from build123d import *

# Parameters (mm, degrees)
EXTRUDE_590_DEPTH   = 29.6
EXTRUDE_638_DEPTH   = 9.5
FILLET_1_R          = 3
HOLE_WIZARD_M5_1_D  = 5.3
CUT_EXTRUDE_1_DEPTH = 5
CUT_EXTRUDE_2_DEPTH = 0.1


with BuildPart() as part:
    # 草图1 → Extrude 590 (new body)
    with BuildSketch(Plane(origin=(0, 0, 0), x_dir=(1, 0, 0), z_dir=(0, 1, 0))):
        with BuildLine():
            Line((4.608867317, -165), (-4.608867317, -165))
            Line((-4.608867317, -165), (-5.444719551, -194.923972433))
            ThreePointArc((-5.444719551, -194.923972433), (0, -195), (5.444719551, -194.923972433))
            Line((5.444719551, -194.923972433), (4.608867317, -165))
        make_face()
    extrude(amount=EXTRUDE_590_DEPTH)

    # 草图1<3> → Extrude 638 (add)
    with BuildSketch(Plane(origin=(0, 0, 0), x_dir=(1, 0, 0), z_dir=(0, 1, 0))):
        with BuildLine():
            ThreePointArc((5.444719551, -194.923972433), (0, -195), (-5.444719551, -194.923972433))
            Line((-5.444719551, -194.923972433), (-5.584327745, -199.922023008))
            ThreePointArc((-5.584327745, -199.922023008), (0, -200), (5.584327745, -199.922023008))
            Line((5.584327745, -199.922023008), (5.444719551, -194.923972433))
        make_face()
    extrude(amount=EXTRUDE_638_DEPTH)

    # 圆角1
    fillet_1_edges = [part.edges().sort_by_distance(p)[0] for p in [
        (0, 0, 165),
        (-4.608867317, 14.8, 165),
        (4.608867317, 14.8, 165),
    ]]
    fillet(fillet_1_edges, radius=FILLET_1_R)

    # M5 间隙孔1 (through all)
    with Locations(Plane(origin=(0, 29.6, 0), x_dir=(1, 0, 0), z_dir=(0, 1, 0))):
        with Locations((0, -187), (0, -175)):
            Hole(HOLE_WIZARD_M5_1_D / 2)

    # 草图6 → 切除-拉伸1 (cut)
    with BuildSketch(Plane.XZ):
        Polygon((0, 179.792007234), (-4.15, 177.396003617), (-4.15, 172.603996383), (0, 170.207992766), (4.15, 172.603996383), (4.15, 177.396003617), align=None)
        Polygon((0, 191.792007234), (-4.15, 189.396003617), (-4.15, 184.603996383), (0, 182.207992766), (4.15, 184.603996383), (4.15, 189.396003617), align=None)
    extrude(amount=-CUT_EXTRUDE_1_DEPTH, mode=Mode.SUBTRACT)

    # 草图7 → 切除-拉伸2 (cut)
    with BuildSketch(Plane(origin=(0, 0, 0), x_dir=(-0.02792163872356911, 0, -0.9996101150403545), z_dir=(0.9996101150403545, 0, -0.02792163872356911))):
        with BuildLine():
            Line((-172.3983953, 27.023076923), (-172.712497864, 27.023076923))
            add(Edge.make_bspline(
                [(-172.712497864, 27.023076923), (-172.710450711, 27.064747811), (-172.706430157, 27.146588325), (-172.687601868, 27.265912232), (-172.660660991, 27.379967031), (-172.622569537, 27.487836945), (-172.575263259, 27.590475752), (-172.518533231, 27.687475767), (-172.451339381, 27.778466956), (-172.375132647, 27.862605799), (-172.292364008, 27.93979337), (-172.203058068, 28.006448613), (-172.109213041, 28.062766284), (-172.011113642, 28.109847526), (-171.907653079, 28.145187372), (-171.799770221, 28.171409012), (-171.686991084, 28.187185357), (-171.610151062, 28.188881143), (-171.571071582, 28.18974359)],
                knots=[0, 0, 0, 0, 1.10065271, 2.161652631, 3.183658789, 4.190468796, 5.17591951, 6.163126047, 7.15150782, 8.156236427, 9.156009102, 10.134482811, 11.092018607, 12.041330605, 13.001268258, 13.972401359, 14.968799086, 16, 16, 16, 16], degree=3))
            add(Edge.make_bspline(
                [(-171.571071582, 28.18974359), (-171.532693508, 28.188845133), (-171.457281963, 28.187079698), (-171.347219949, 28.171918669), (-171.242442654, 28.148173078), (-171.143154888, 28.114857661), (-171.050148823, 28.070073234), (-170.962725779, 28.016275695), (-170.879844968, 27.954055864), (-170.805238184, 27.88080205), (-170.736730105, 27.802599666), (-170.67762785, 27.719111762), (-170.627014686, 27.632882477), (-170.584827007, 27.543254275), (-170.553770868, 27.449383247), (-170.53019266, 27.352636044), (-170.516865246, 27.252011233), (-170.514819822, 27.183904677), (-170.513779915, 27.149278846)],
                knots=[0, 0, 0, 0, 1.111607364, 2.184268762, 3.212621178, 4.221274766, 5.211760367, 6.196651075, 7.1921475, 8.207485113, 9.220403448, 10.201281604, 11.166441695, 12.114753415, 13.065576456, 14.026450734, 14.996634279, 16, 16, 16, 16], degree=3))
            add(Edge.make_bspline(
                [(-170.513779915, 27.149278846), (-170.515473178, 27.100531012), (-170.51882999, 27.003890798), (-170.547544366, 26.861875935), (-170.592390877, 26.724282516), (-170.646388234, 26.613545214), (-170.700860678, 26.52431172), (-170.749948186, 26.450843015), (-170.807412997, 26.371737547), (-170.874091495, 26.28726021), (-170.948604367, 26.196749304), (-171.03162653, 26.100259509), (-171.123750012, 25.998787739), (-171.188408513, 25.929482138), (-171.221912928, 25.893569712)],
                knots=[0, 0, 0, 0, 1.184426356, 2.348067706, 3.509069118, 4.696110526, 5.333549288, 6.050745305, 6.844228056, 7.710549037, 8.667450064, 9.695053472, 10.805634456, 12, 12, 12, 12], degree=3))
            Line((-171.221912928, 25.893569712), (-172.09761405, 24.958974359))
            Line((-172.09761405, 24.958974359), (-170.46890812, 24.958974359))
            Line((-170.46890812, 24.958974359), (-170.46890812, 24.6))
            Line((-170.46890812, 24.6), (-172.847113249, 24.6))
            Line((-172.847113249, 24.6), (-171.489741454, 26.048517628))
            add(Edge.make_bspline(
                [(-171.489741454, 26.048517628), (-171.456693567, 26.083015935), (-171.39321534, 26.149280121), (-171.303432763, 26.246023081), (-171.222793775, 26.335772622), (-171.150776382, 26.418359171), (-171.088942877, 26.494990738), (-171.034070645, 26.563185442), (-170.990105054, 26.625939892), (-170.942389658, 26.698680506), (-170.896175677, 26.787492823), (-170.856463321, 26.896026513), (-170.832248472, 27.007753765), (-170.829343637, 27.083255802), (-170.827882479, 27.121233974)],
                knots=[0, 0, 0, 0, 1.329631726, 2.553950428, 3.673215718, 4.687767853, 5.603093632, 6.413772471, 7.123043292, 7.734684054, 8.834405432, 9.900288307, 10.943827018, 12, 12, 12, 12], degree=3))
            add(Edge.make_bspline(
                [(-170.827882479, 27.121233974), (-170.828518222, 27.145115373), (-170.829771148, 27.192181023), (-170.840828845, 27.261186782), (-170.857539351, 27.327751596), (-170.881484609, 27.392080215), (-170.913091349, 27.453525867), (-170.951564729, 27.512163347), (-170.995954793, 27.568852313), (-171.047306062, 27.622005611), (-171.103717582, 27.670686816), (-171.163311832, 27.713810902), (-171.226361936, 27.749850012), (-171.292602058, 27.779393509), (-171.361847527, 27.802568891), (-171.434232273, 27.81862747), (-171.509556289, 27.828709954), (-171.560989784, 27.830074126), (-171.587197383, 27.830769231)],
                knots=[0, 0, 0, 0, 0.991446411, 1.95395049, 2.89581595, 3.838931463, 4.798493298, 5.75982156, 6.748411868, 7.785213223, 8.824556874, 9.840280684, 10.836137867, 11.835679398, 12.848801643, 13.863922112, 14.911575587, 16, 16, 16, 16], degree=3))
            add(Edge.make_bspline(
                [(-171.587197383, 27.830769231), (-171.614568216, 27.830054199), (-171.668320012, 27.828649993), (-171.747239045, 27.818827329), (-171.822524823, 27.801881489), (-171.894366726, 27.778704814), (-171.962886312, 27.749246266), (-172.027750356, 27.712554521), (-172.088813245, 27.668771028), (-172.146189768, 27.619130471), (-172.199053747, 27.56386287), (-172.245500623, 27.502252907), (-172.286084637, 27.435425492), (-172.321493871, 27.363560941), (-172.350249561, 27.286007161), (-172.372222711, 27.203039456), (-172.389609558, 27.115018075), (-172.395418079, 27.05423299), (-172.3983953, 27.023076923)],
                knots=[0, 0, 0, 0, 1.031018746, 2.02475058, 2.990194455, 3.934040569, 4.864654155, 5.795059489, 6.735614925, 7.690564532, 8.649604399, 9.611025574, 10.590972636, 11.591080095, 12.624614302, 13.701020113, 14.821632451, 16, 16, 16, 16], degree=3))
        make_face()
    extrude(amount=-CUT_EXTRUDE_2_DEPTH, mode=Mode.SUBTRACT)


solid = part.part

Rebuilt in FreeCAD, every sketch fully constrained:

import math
import FreeCAD as App
import Part
import Sketcher

V = App.Vector
Q = App.Units.Quantity


def edges_at(feature, points):
    """Names of the edges that pass closest to the given points."""
    edges = feature.Shape.Edges
    near = lambda p: min(range(len(edges)), key=lambda i: edges[i].distToShape(Part.Vertex(*p))[0])
    return sorted({f"Edge{near(p) + 1}" for p in points})

doc = App.newDocument("Part")
body = doc.addObject("PartDesign::Body", "Body")

# Sketch on XZ plane
sketch1 = body.newObject("Sketcher::SketchObject", "Sketch")
sketch1.AttachmentSupport = (doc.getObject("XZ_Plane"), [""])
sketch1.MapMode = "FlatFace"
sketch1.addGeometry([
    Part.LineSegment(V(4.608867, 165, 0), V(-4.608867, 165, 0)),
    Part.LineSegment(V(-4.608867, 165, 0), V(-5.44472, 194.923972, 0)),
    Part.ArcOfCircle(Part.Circle(V(0, 0, 0), V(0, 0, 1), 195), math.radians(88.4), math.radians(91.6)),
    Part.LineSegment(V(5.44472, 194.923972, 0), V(4.608867, 165, 0)),
], False)
sketch1.addConstraint([
    Sketcher.Constraint("Coincident", 0, 2, 1, 1),
    Sketcher.Constraint("Coincident", 1, 2, 2, 2),
    Sketcher.Constraint("Coincident", 2, 1, 3, 1),
    Sketcher.Constraint("Coincident", 3, 2, 0, 1),
    Sketcher.Constraint("Horizontal", 0),
    Sketcher.Constraint("Coincident", 2, 3, -1, 1),
    Sketcher.Constraint("Horizontal", 1, 2, 2, 1),
    Sketcher.Constraint("Equal", 1, 3),
    Sketcher.Constraint("Radius", 2, 195.0),
    Sketcher.Constraint("DistanceY", -1, 1, 0, 2, 165.0),
    Sketcher.Constraint("Angle", 1, Q("91.6 deg")),
    Sketcher.Constraint("DistanceX", 0, 2, 0, 1, 9.217735),
])
pad1 = body.newObject("PartDesign::Pad", "Pad")
pad1.Profile = sketch1
pad1.Length = 29.6
pad1.Reversed = True

# Sketch on XZ plane
sketch2 = body.newObject("Sketcher::SketchObject", "Sketch001")
sketch2.AttachmentSupport = (doc.getObject("XZ_Plane"), [""])
sketch2.MapMode = "FlatFace"
sketch2.addGeometry([
    Part.ArcOfCircle(Part.Circle(V(0, 0, 0), V(0, 0, 1), 195), math.radians(88.4), math.radians(91.6)),
    Part.LineSegment(V(-5.44472, 194.923972, 0), V(-5.584328, 199.922023, 0)),
    Part.ArcOfCircle(Part.Circle(V(0, 0, 0), V(0, 0, 1), 200), math.radians(88.4), math.radians(91.6)),
    Part.LineSegment(V(5.584328, 199.922023, 0), V(5.44472, 194.923972, 0)),
], False)
sketch2.addConstraint([
    Sketcher.Constraint("Coincident", 0, 2, 1, 1),
    Sketcher.Constraint("Coincident", 1, 2, 2, 2),
    Sketcher.Constraint("Coincident", 2, 1, 3, 1),
    Sketcher.Constraint("Coincident", 3, 2, 0, 1),
    Sketcher.Constraint("Coincident", 0, 3, -1, 1),
    Sketcher.Constraint("Coincident", 2, 3, -1, 1),
    Sketcher.Constraint("Horizontal", 1, 2, 2, 1),
    Sketcher.Constraint("Horizontal", 0, 2, 3, 2),
    Sketcher.Constraint("Radius", 0, 195.0),
    Sketcher.Constraint("Radius", 2, 200.0),
    Sketcher.Constraint("Angle", 1, Q("91.6 deg")),
    Sketcher.Constraint("DistanceX", 0, 2, -1, 1, 5.44472),
])
pad2 = body.newObject("PartDesign::Pad", "Pad001")
pad2.Profile = sketch2
pad2.Length = 9.5
pad2.Reversed = True
doc.recompute()

fillet = body.newObject("PartDesign::Fillet", "Fillet")
fillet.Base = (pad2, edges_at(pad2, [(0, 0, 165), (-4.609, 14.8, 165), (4.609, 14.8, 165)]))
fillet.Radius = 3

# Sketch on XZ plane
sketch3 = body.newObject("Sketcher::SketchObject", "Sketch002")
sketch3.AttachmentSupport = (doc.getObject("XZ_Plane"), [""])
sketch3.MapMode = "FlatFace"
sketch3.AttachmentOffset = App.Placement(V(0, 0, -29.6), App.Rotation())
sketch3.addGeometry([
    Part.Circle(V(0, 187, 0), V(0, 0, 1), 2.65),
    Part.Circle(V(0, 175, 0), V(0, 0, 1), 2.65),
], False)
sketch3.addConstraint([
    Sketcher.Constraint("Equal", 0, 1),
    Sketcher.Constraint("PointOnObject", 0, 3, -2),
    Sketcher.Constraint("PointOnObject", 1, 3, -2),
    Sketcher.Constraint("Diameter", 0, 5.3),
    Sketcher.Constraint("DistanceY", -1, 1, 0, 3, 187.0),
    Sketcher.Constraint("DistanceY", -1, 1, 1, 3, 175.0),
])
doc.recompute()
hole = body.newObject("PartDesign::Hole", "Hole")
hole.Profile = sketch3
hole.ThreadType = "None"
hole.Diameter = 5.3
hole.DepthType = "ThroughAll"
hole.Reversed = True

# Sketch on XZ plane
sketch4 = body.newObject("Sketcher::SketchObject", "Sketch003")
sketch4.AttachmentSupport = (doc.getObject("XZ_Plane"), [""])
sketch4.MapMode = "FlatFace"
sketch4.addGeometry([
    Part.LineSegment(V(0, 179.792007, 0), V(-4.15, 177.396004, 0)),  # 0
    Part.LineSegment(V(-4.15, 177.396004, 0), V(-4.15, 172.603996, 0)),  # 1
    Part.LineSegment(V(-4.15, 172.603996, 0), V(0, 170.207993, 0)),  # 2
    Part.LineSegment(V(0, 170.207993, 0), V(4.15, 172.603996, 0)),  # 3
    Part.LineSegment(V(4.15, 172.603996, 0), V(4.15, 177.396004, 0)),  # 4
    Part.LineSegment(V(4.15, 177.396004, 0), V(0, 179.792007, 0)),  # 5
    Part.LineSegment(V(0, 191.792007, 0), V(-4.15, 189.396004, 0)),  # 6
    Part.LineSegment(V(-4.15, 189.396004, 0), V(-4.15, 184.603996, 0)),  # 7
    Part.LineSegment(V(-4.15, 184.603996, 0), V(0, 182.207993, 0)),  # 8
    Part.LineSegment(V(0, 182.207993, 0), V(4.15, 184.603996, 0)),  # 9
    Part.LineSegment(V(4.15, 184.603996, 0), V(4.15, 189.396004, 0)),  # 10
    Part.LineSegment(V(4.15, 189.396004, 0), V(0, 191.792007, 0)),  # 11
], False)
sketch4.addConstraint([
    Sketcher.Constraint("Coincident", 0, 2, 1, 1),
    Sketcher.Constraint("Coincident", 1, 2, 2, 1),
    Sketcher.Constraint("Coincident", 2, 2, 3, 1),
    Sketcher.Constraint("Coincident", 3, 2, 4, 1),
    Sketcher.Constraint("Coincident", 4, 2, 5, 1),
    Sketcher.Constraint("Coincident", 5, 2, 0, 1),
    Sketcher.Constraint("Coincident", 6, 2, 7, 1),
    Sketcher.Constraint("Coincident", 7, 2, 8, 1),
    Sketcher.Constraint("Coincident", 8, 2, 9, 1),
    Sketcher.Constraint("Coincident", 9, 2, 10, 1),
    Sketcher.Constraint("Coincident", 10, 2, 11, 1),
    Sketcher.Constraint("Coincident", 11, 2, 6, 1),
    Sketcher.Constraint("Vertical", 1),
    Sketcher.Constraint("Vertical", 4),
    Sketcher.Constraint("Vertical", 7),
    Sketcher.Constraint("Vertical", 10),
    Sketcher.Constraint("Symmetric", 1, 2, 3, 2, -2),
    Sketcher.Constraint("Symmetric", 7, 2, 9, 2, -2),
    Sketcher.Constraint("PointOnObject", 2, 2, -2),
    Sketcher.Constraint("PointOnObject", 5, 2, -2),
    Sketcher.Constraint("PointOnObject", 8, 2, -2),
    Sketcher.Constraint("PointOnObject", 11, 2, -2),
    Sketcher.Constraint("Parallel", 0, 3),
    Sketcher.Constraint("Parallel", 2, 5),
    Sketcher.Constraint("Parallel", 3, 6),
    Sketcher.Constraint("Parallel", 5, 8),
    Sketcher.Constraint("Parallel", 8, 11),
    Sketcher.Constraint("Vertical", 1, 2, 6, 2),
    Sketcher.Constraint("Equal", 4, 7),
    Sketcher.Constraint("Angle", 0, Q("-150 deg")),
    Sketcher.Constraint("DistanceY", 0, 2, 6, 2, 12.0),
    Sketcher.Constraint("DistanceX", 1, 2, 3, 2, 8.3),
    Sketcher.Constraint("DistanceY", 1, 2, 1, 1, 4.792007),
    Sketcher.Constraint("DistanceY", -1, 1, 0, 2, 177.396004),
])
pocket1 = body.newObject("PartDesign::Pocket", "Pocket")
pocket1.Profile = sketch4
pocket1.Length = 5

# Sketch on an angled plane
sketch5 = body.newObject("Sketcher::SketchObject", "Sketch004")
sketch5.Placement = App.Placement(V(0, 0, 0), App.Rotation(V(-0.027921639, 0, -0.999610115), V(0, 1, 0), V(0.999610115, 0, -0.027921639), "ZXY"))
sketch5.addGeometry([
    Part.LineSegment(V(-172.712498, 27.023077, 0), V(-172.398395, 27.023077, 0)),  # 0
    Part.BSplineCurve([V(-171.587197, 27.830769, 0), V(-171.614568, 27.830054, 0), V(-171.66832, 27.82865, 0), V(-171.747239, 27.818827, 0), V(-171.822525, 27.801881, 0), V(-171.894367, 27.778705, 0), V(-171.962886, 27.749246, 0), V(-172.02775, 27.712555, 0), V(-172.088813, 27.668771, 0), V(-172.14619, 27.61913, 0), V(-172.199054, 27.563863, 0), V(-172.245501, 27.502253, 0), V(-172.286085, 27.435425, 0), V(-172.321494, 27.363561, 0), V(-172.35025, 27.286007, 0), V(-172.372223, 27.203039, 0), V(-172.38961, 27.115018, 0), V(-172.395418, 27.054233, 0), V(-172.398395, 27.023077, 0)], [4, 1, 1, 1, 1, 1, 1, 1, 1, 1, 1, 1, 1, 1, 1, 1, 4], [0, 1.031018746, 2.02475058, 2.990194455, 3.934040569, 4.864654155, 5.795059489, 6.735614925, 7.690564532, 8.649604399, 9.611025574, 10.590972636, 11.591080095, 12.624614302, 13.701020113, 14.821632451, 16], False, 3, [1, 1, 1, 1, 1, 1, 1, 1, 1, 1, 1, 1, 1, 1, 1, 1, 1, 1, 1], False),  # 1
    Part.BSplineCurve([V(-170.827882, 27.121234, 0), V(-170.828518, 27.145115, 0), V(-170.829771, 27.192181, 0), V(-170.840829, 27.261187, 0), V(-170.857539, 27.327752, 0), V(-170.881485, 27.39208, 0), V(-170.913091, 27.453526, 0), V(-170.951565, 27.512163, 0), V(-170.995955, 27.568852, 0), V(-171.047306, 27.622006, 0), V(-171.103718, 27.670687, 0), V(-171.163312, 27.713811, 0), V(-171.226362, 27.74985, 0), V(-171.292602, 27.779394, 0), V(-171.361848, 27.802569, 0), V(-171.434232, 27.818627, 0), V(-171.509556, 27.82871, 0), V(-171.56099, 27.830074, 0), V(-171.587197, 27.830769, 0)], [4, 1, 1, 1, 1, 1, 1, 1, 1, 1, 1, 1, 1, 1, 1, 1, 4], [0, 0.991446411, 1.95395049, 2.89581595, 3.838931463, 4.798493298, 5.75982156, 6.748411868, 7.785213223, 8.824556874, 9.840280684, 10.836137867, 11.835679398, 12.848801643, 13.863922112, 14.911575587, 16], False, 3, [1, 1, 1, 1, 1, 1, 1, 1, 1, 1, 1, 1, 1, 1, 1, 1, 1, 1, 1], False),  # 2
    Part.BSplineCurve([V(-171.489741, 26.048518, 0), V(-171.456694, 26.083016, 0), V(-171.393215, 26.14928, 0), V(-171.303433, 26.246023, 0), V(-171.222794, 26.335773, 0), V(-171.150776, 26.418359, 0), V(-171.088943, 26.494991, 0), V(-171.034071, 26.563185, 0), V(-170.990105, 26.62594, 0), V(-170.94239, 26.698681, 0), V(-170.896176, 26.787493, 0), V(-170.856463, 26.896027, 0), V(-170.832248, 27.007754, 0), V(-170.829344, 27.083256, 0), V(-170.827882, 27.121234, 0)], [4, 1, 1, 1, 1, 1, 1, 1, 1, 1, 1, 1, 4], [0, 1.329631726, 2.553950428, 3.673215718, 4.687767853, 5.603093632, 6.413772471, 7.123043292, 7.734684054, 8.834405432, 9.900288307, 10.943827018, 12], False, 3, [1, 1, 1, 1, 1, 1, 1, 1, 1, 1, 1, 1, 1, 1, 1], False),  # 3
    Part.LineSegment(V(-171.489741, 26.048518, 0), V(-172.847113, 24.6, 0)),  # 4
    Part.LineSegment(V(-172.847113, 24.6, 0), V(-170.468908, 24.6, 0)),  # 5
    Part.LineSegment(V(-170.468908, 24.6, 0), V(-170.468908, 24.958974, 0)),  # 6
    Part.LineSegment(V(-170.468908, 24.958974, 0), V(-172.097614, 24.958974, 0)),  # 7
    Part.LineSegment(V(-172.097614, 24.958974, 0), V(-171.221913, 25.89357, 0)),  # 8
    Part.BSplineCurve([V(-170.51378, 27.149279, 0), V(-170.515473, 27.100531, 0), V(-170.51883, 27.003891, 0), V(-170.547544, 26.861876, 0), V(-170.592391, 26.724283, 0), V(-170.646388, 26.613545, 0), V(-170.700861, 26.524312, 0), V(-170.749948, 26.450843, 0), V(-170.807413, 26.371738, 0), V(-170.874091, 26.28726, 0), V(-170.948604, 26.196749, 0), V(-171.031627, 26.10026, 0), V(-171.12375, 25.998788, 0), V(-171.188409, 25.929482, 0), V(-171.221913, 25.89357, 0)], [4, 1, 1, 1, 1, 1, 1, 1, 1, 1, 1, 1, 4], [0, 1.184426356, 2.348067706, 3.509069118, 4.696110526, 5.333549288, 6.050745305, 6.844228056, 7.710549037, 8.667450064, 9.695053472, 10.805634456, 12], False, 3, [1, 1, 1, 1, 1, 1, 1, 1, 1, 1, 1, 1, 1, 1, 1], False),  # 9
    Part.BSplineCurve([V(-171.571072, 28.189744, 0), V(-171.532693, 28.188845, 0), V(-171.457282, 28.18708, 0), V(-171.34722, 28.171919, 0), V(-171.242443, 28.148173, 0), V(-171.143155, 28.114858, 0), V(-171.050149, 28.070073, 0), V(-170.962726, 28.016276, 0), V(-170.879845, 27.954056, 0), V(-170.805238, 27.880802, 0), V(-170.73673, 27.8026, 0), V(-170.677628, 27.719112, 0), V(-170.627015, 27.632882, 0), V(-170.584827, 27.543254, 0), V(-170.553771, 27.449383, 0), V(-170.530193, 27.352636, 0), V(-170.516865, 27.252011, 0), V(-170.51482, 27.183905, 0), V(-170.51378, 27.149279, 0)], [4, 1, 1, 1, 1, 1, 1, 1, 1, 1, 1, 1, 1, 1, 1, 1, 4], [0, 1.111607364, 2.184268762, 3.212621178, 4.221274766, 5.211760367, 6.196651075, 7.1921475, 8.207485113, 9.220403448, 10.201281604, 11.166441695, 12.114753415, 13.065576456, 14.026450734, 14.996634279, 16], False, 3, [1, 1, 1, 1, 1, 1, 1, 1, 1, 1, 1, 1, 1, 1, 1, 1, 1, 1, 1], False),  # 10
    Part.BSplineCurve([V(-172.712498, 27.023077, 0), V(-172.710451, 27.064748, 0), V(-172.70643, 27.146588, 0), V(-172.687602, 27.265912, 0), V(-172.660661, 27.379967, 0), V(-172.62257, 27.487837, 0), V(-172.575263, 27.590476, 0), V(-172.518533, 27.687476, 0), V(-172.451339, 27.778467, 0), V(-172.375133, 27.862606, 0), V(-172.292364, 27.939793, 0), V(-172.203058, 28.006449, 0), V(-172.109213, 28.062766, 0), V(-172.011114, 28.109848, 0), V(-171.907653, 28.145187, 0), V(-171.79977, 28.171409, 0), V(-171.686991, 28.187185, 0), V(-171.610151, 28.188881, 0), V(-171.571072, 28.189744, 0)], [4, 1, 1, 1, 1, 1, 1, 1, 1, 1, 1, 1, 1, 1, 1, 1, 4], [0, 1.10065271, 2.161652631, 3.183658789, 4.190468796, 5.17591951, 6.163126047, 7.15150782, 8.156236427, 9.156009102, 10.134482811, 11.092018607, 12.041330605, 13.001268258, 13.972401359, 14.968799086, 16], False, 3, [1, 1, 1, 1, 1, 1, 1, 1, 1, 1, 1, 1, 1, 1, 1, 1, 1, 1, 1], False),  # 11
], False)
sketch5.addConstraint([
    Sketcher.Constraint("Block", 1),
    Sketcher.Constraint("Block", 2),
    Sketcher.Constraint("Block", 3),
    Sketcher.Constraint("Block", 9),
    Sketcher.Constraint("Block", 10),
    Sketcher.Constraint("Block", 11),
    Sketcher.Constraint("Coincident", 0, 2, 1, 2),
    Sketcher.Constraint("Coincident", 3, 1, 4, 1),
    Sketcher.Constraint("Coincident", 4, 2, 5, 1),
    Sketcher.Constraint("Coincident", 5, 2, 6, 1),
    Sketcher.Constraint("Coincident", 6, 2, 7, 1),
    Sketcher.Constraint("Coincident", 7, 2, 8, 1),
    Sketcher.Constraint("Coincident", 8, 2, 9, 2),
    Sketcher.Constraint("Coincident", 11, 1, 0, 1),
    Sketcher.Constraint("Horizontal", 5),
    Sketcher.Constraint("Vertical", 6),
    Sketcher.Constraint("Horizontal", 7),
    Sketcher.Constraint("DistanceY", -1, 1, 4, 2, 24.6),
    Sketcher.Constraint("DistanceX", 4, 2, 7, 2, 0.749499),
    Sketcher.Constraint("DistanceX", 7, 2, 8, 2, 0.875701),
    Sketcher.Constraint("Distance", 8, 1.28075),
    Sketcher.Constraint("DistanceX", 5, 1, 5, 2, 2.378205),
])
pocket2 = body.newObject("PartDesign::Pocket", "Pocket001")
pocket2.Profile = sketch5
pocket2.Length = 0.1

doc.recompute()
